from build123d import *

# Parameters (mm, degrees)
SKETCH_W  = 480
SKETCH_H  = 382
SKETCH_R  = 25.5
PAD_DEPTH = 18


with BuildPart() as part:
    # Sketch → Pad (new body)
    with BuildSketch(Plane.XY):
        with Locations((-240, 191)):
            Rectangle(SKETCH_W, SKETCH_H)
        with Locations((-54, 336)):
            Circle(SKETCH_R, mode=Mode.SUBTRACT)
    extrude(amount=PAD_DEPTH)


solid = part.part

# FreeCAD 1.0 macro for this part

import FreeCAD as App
import Part
import Sketcher


def add_polygon(sketch, points):
    """Adds a closed chain of lines whose ends are joined by coincident constraints."""
    first, n = sketch.GeometryCount, len(points)
    for a, b in zip(points, points[1:] + points[:1]):
        sketch.addGeometry(Part.LineSegment(App.Vector(*a, 0), App.Vector(*b, 0)), False)
    for i in range(n):
        sketch.addConstraint(Sketcher.Constraint("Coincident", first + i, 2, first + (i + 1) % n, 1))

doc = App.newDocument("Part")
body = doc.addObject("PartDesign::Body", "Body")

# Sketch on XY plane
sketch1 = body.newObject("Sketcher::SketchObject", "Sketch")
sketch1.AttachmentSupport = (doc.getObject("XY_Plane"), [""])
sketch1.MapMode = "FlatFace"
add_polygon(sketch1, [(-480, 382), (-480, 0), (0, 0), (0, 382)])  # lines 0-3
sketch1.addGeometry(Part.Circle(App.Vector(-54, 336, 0), App.Vector(0, 0, 1), 26), False)  # 4
sketch1.addConstraint([
    Sketcher.Constraint("Vertical", 0),
    Sketcher.Constraint("Horizontal", 1),
    Sketcher.Constraint("Vertical", 2),
    Sketcher.Constraint("Horizontal", 3),
    Sketcher.Constraint("Coincident", 1, 2, -1, 1),
    Sketcher.Constraint("Diameter", 4, 51.0),
    Sketcher.Constraint("DistanceX", 1, 1, 1, 2, 480.0),
    Sketcher.Constraint("DistanceY", 0, 2, 0, 1, 382.0),
    Sketcher.Constraint("DistanceX", 4, 3, -1, 1, 54.0),
    Sketcher.Constraint("DistanceY", -1, 1, 4, 3, 336.0),
])
pad1 = body.newObject("PartDesign::Pad", "Pad")
pad1.Profile = sketch1
pad1.Length = 18

doc.recompute()
